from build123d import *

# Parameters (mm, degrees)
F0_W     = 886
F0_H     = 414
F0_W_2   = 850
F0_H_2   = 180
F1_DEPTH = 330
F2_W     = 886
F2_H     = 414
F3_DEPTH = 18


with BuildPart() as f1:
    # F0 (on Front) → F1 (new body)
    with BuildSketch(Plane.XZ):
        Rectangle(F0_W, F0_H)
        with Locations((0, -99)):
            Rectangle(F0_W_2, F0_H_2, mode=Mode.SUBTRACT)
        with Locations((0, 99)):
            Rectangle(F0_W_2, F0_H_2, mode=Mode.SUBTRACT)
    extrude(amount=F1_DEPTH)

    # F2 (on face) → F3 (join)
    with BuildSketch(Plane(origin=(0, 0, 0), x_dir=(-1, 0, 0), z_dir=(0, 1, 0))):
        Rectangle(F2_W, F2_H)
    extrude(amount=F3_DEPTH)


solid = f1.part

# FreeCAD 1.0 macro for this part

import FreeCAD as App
import Part
import Sketcher

doc = App.newDocument("Part")
params = doc.addObject("Spreadsheet::Sheet", "Params")
for row, (alias, value) in enumerate([
    ("sketch1_width", "886 mm"),
    ("sketch1_width2", "850 mm"),
    ("sketch1_height", "414 mm"),
    ("sketch1_height2", "180 mm"),
    ("pad1_length", "330 mm"),
    ("sketch2_width", "886 mm"),
    ("sketch2_height", "414 mm"),
    ("pad2_length", "18 mm"),
], start=1):
    params.set(f"A{row}", alias)
    params.set(f"B{row}", "=" + value)
    params.setAlias(f"B{row}", alias)

body = doc.addObject("PartDesign::Body", "Body")

# Sketch on XZ plane
sketch1 = body.newObject("Sketcher::SketchObject", "Sketch")
sketch1.AttachmentSupport = (doc.getObject("XZ_Plane"), [""])
sketch1.MapMode = "FlatFace"
sketch1.addGeometry([
    Part.LineSegment(App.Vector(-443, 207, 0), App.Vector(-443, -207, 0)),  # 0
    Part.LineSegment(App.Vector(-443, -207, 0), App.Vector(443, -207, 0)),  # 1
    Part.LineSegment(App.Vector(443, -207, 0), App.Vector(443, 207, 0)),  # 2
    Part.LineSegment(App.Vector(443, 207, 0), App.Vector(-443, 207, 0)),  # 3
    Part.LineSegment(App.Vector(425, -189, 0), App.Vector(-425, -189, 0)),  # 4
    Part.LineSegment(App.Vector(-425, -189, 0), App.Vector(-425, -9, 0)),  # 5
    Part.LineSegment(App.Vector(-425, -9, 0), App.Vector(425, -9, 0)),  # 6
    Part.LineSegment(App.Vector(425, -9, 0), App.Vector(425, -189, 0)),  # 7
    Part.LineSegment(App.Vector(425, 9, 0), App.Vector(-425, 9, 0)),  # 8
    Part.LineSegment(App.Vector(-425, 9, 0), App.Vector(-425, 189, 0)),  # 9
    Part.LineSegment(App.Vector(-425, 189, 0), App.Vector(425, 189, 0)),  # 10
    Part.LineSegment(App.Vector(425, 189, 0), App.Vector(425, 9, 0)),  # 11
], False)
sketch1.addConstraint([
    Sketcher.Constraint("Coincident", 0, 2, 1, 1),
    Sketcher.Constraint("Coincident", 1, 2, 2, 1),
    Sketcher.Constraint("Coincident", 2, 2, 3, 1),
    Sketcher.Constraint("Coincident", 3, 2, 0, 1),
    Sketcher.Constraint("Coincident", 4, 2, 5, 1),
    Sketcher.Constraint("Coincident", 5, 2, 6, 1),
    Sketcher.Constraint("Coincident", 6, 2, 7, 1),
    Sketcher.Constraint("Coincident", 7, 2, 4, 1),
    Sketcher.Constraint("Coincident", 8, 2, 9, 1),
    Sketcher.Constraint("Coincident", 9, 2, 10, 1),
    Sketcher.Constraint("Coincident", 10, 2, 11, 1),
    Sketcher.Constraint("Coincident", 11, 2, 8, 1),
    Sketcher.Constraint("Vertical", 0),
    Sketcher.Constraint("Horizontal", 1),
    Sketcher.Constraint("Vertical", 2),
    Sketcher.Constraint("Horizontal", 3),
    Sketcher.Constraint("Horizontal", 4),
    Sketcher.Constraint("Vertical", 5),
    Sketcher.Constraint("Horizontal", 6),
    Sketcher.Constraint("Vertical", 7),
    Sketcher.Constraint("Horizontal", 8),
    Sketcher.Constraint("Vertical", 9),
    Sketcher.Constraint("Horizontal", 10),
    Sketcher.Constraint("Vertical", 11),
    Sketcher.Constraint("Symmetric", 0, 2, 2, 2, -1, 1),
    Sketcher.Constraint("Symmetric", 6, 2, 8, 2, -1, 1),
    Sketcher.Constraint("Symmetric", 4, 2, 10, 2, -1, 1),
    Sketcher.Constraint("Vertical", 5, 2, 8, 2),
    Sketcher.Constraint("DistanceX", 1, 1, 1, 2, 886.0),
    Sketcher.Constraint("DistanceX", 4, 2, 4, 1, 850.0),
    Sketcher.Constraint("DistanceY", 0, 2, 0, 1, 414.0),
    Sketcher.Constraint("DistanceY", 5, 1, 5, 2, 180.0),
    Sketcher.Constraint("DistanceY", 4, 2, -1, 1, 189.0),
])
sketch1.setExpression("Constraints[28]", "Params.sketch1_width")
sketch1.setExpression("Constraints[29]", "Params.sketch1_width2")
sketch1.setExpression("Constraints[30]", "Params.sketch1_height")
sketch1.setExpression("Constraints[31]", "Params.sketch1_height2")
pad1 = body.newObject("PartDesign::Pad", "Pad")
pad1.Profile = sketch1
pad1.setExpression("Length", "Params.pad1_length")

# Sketch on XZ plane
sketch2 = body.newObject("Sketcher::SketchObject", "Sketch001")
sketch2.AttachmentSupport = (doc.getObject("XZ_Plane"), [""])
sketch2.MapMode = "FlatFace"
sketch2.addGeometry([
    Part.LineSegment(App.Vector(443, 207, 0), App.Vector(443, -207, 0)),
    Part.LineSegment(App.Vector(443, -207, 0), App.Vector(-443, -207, 0)),
    Part.LineSegment(App.Vector(-443, -207, 0), App.Vector(-443, 207, 0)),
    Part.LineSegment(App.Vector(-443, 207, 0), App.Vector(443, 207, 0)),
], False)
sketch2.addConstraint([
    Sketcher.Constraint("Coincident", 0, 2, 1, 1),
    Sketcher.Constraint("Coincident", 1, 2, 2, 1),
    Sketcher.Constraint("Coincident", 2, 2, 3, 1),
    Sketcher.Constraint("Coincident", 3, 2, 0, 1),
    Sketcher.Constraint("Vertical", 0),
    Sketcher.Constraint("Horizontal", 1),
    Sketcher.Constraint("Vertical", 2),
    Sketcher.Constraint("Horizontal", 3),
    Sketcher.Constraint("Symmetric", 0, 2, 2, 2, -1, 1),
    Sketcher.Constraint("DistanceX", 1, 2, 1, 1, 886.0),
    Sketcher.Constraint("DistanceY", 0, 2, 0, 1, 414.0),
])
sketch2.setExpression("Constraints[9]", "Params.sketch2_width")
sketch2.setExpression("Constraints[10]", "Params.sketch2_height")
pad2 = body.newObject("PartDesign::Pad", "Pad001")
pad2.Profile = sketch2
pad2.setExpression("Length", "Params.pad2_length")
pad2.Reversed = True

doc.recompute()
